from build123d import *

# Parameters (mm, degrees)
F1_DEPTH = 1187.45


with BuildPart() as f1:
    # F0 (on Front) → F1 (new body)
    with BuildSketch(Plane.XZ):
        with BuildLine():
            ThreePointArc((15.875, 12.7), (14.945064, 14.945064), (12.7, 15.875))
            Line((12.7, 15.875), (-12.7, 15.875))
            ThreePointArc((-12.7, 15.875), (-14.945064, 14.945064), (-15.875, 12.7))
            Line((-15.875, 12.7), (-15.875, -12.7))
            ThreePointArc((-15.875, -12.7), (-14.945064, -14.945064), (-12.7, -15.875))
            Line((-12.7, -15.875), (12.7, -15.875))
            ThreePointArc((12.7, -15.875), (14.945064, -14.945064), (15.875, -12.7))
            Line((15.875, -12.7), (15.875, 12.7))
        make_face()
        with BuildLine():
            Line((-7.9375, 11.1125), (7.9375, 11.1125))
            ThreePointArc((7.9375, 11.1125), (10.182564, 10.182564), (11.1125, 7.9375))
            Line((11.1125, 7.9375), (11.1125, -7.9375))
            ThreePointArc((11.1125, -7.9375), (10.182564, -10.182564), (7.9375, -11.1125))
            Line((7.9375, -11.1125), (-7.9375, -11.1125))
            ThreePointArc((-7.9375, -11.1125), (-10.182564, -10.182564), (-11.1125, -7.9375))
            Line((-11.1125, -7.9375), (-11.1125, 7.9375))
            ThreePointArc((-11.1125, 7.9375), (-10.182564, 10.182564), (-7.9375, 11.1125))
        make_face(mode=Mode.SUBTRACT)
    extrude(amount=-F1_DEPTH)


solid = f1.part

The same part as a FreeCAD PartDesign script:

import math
import FreeCAD as App
import Part
import Sketcher
from FreeCAD import Vector
Q = App.Units.Quantity

doc = App.newDocument("Part")
body = doc.addObject("PartDesign::Body", "Body")

# Sketch on XZ plane
sketch1 = doc.addObject("Sketcher::SketchObject", "Sketch")
body.addObject(sketch1)
sketch1.AttachmentSupport = (doc.XZ_Plane, [""])
sketch1.MapMode = "FlatFace"
sketch1.addGeometry([
    Part.ArcOfCircle(Part.Circle(Vector(12.7, 12.7, 0), Vector(0, 0, 1), 3.2), math.radians(0), math.radians(90)),  # 0
    Part.LineSegment(Vector(12.7, 15.9, 0), Vector(-12.7, 15.9, 0)),  # 1
    Part.ArcOfCircle(Part.Circle(Vector(-12.7, 12.7, 0), Vector(0, 0, 1), 3.2), math.radians(90), math.radians(180)),  # 2
    Part.LineSegment(Vector(-15.9, 12.7, 0), Vector(-15.9, -12.7, 0)),  # 3
    Part.ArcOfCircle(Part.Circle(Vector(-12.7, -12.7, 0), Vector(0, 0, 1), 3.2), math.radians(-180), math.radians(-90)),  # 4
    Part.LineSegment(Vector(-12.7, -15.9, 0), Vector(12.7, -15.9, 0)),  # 5
    Part.ArcOfCircle(Part.Circle(Vector(12.7, -12.7, 0), Vector(0, 0, 1), 3.2), math.radians(-90), math.radians(0)),  # 6
    Part.LineSegment(Vector(15.9, -12.7, 0), Vector(15.9, 12.7, 0)),  # 7
    Part.ArcOfCircle(Part.Circle(Vector(-7.9, 7.9, 0), Vector(0, 0, 1), 3.2), math.radians(90), math.radians(180)),  # 8
    Part.LineSegment(Vector(-7.9, 11.1, 0), Vector(7.9, 11.1, 0)),  # 9
    Part.ArcOfCircle(Part.Circle(Vector(7.9, 7.9, 0), Vector(0, 0, 1), 3.2), math.radians(0), math.radians(90)),  # 10
    Part.LineSegment(Vector(11.1, 7.9, 0), Vector(11.1, -7.9, 0)),  # 11
    Part.ArcOfCircle(Part.Circle(Vector(7.9, -7.9, 0), Vector(0, 0, 1), 3.2), math.radians(-90), math.radians(0)),  # 12
    Part.LineSegment(Vector(7.9, -11.1, 0), Vector(-7.9, -11.1, 0)),  # 13
    Part.ArcOfCircle(Part.Circle(Vector(-7.9, -7.9, 0), Vector(0, 0, 1), 3.2), math.radians(-180), math.radians(-90)),  # 14
    Part.LineSegment(Vector(-11.1, -7.9, 0), Vector(-11.1, 7.9, 0)),  # 15
], False)
sketch1.addConstraint([
    Sketcher.Constraint("Tangent", 0, 2, 1, 1),
    Sketcher.Constraint("Tangent", 1, 2, 2, 1),
    Sketcher.Constraint("Tangent", 2, 2, 3, 1),
    Sketcher.Constraint("Tangent", 3, 2, 4, 1),
    Sketcher.Constraint("Tangent", 4, 2, 5, 1),
    Sketcher.Constraint("Tangent", 5, 2, 6, 1),
    Sketcher.Constraint("Tangent", 6, 2, 7, 1),
    Sketcher.Constraint("Tangent", 7, 2, 0, 1),
    Sketcher.Constraint("Tangent", 8, 1, 9, 1),
    Sketcher.Constraint("Tangent", 9, 2, 10, 2),
    Sketcher.Constraint("Tangent", 10, 1, 11, 1),
    Sketcher.Constraint("Tangent", 11, 2, 12, 2),
    Sketcher.Constraint("Tangent", 12, 1, 13, 1),
    Sketcher.Constraint("Tangent", 13, 2, 14, 2),
    Sketcher.Constraint("Tangent", 14, 1, 15, 1),
    Sketcher.Constraint("Tangent", 15, 2, 8, 2),
    Sketcher.Constraint("Horizontal", 1),
    Sketcher.Constraint("Vertical", 3),
    Sketcher.Constraint("Horizontal", 5),
    Sketcher.Constraint("Vertical", 7),
    Sketcher.Constraint("Horizontal", 9),
    Sketcher.Constraint("Vertical", 11),
    Sketcher.Constraint("Horizontal", 13),
    Sketcher.Constraint("Vertical", 15),
    Sketcher.Constraint("Equal", 0, 2),
    Sketcher.Constraint("Equal", 2, 4),
    Sketcher.Constraint("Equal", 4, 6),
    Sketcher.Constraint("Equal", 6, 8),
    Sketcher.Constraint("Equal", 8, 10),
    Sketcher.Constraint("Equal", 10, 12),
    Sketcher.Constraint("Equal", 12, 14),
    Sketcher.Constraint("Symmetric", 0, 3, 4, 3, -1, 1),
    Sketcher.Constraint("Symmetric", 8, 3, 12, 3, -1, 1),
    Sketcher.Constraint("Equal", 5, 3),
    Sketcher.Constraint("Equal", 13, 11),
    Sketcher.Constraint("DistanceX", 1, 2, 1, 1, Q("1 in")),
    Sketcher.Constraint("Radius", 0, Q("0.125 in")),
    Sketcher.Constraint("DistanceX", 9, 1, 9, 2, Q("0.625 in")),
])
pad1 = doc.addObject("PartDesign::Pad", "Pad")
body.addObject(pad1)
pad1.Profile = sketch1
pad1.Length = Q("46.75 in")
pad1.Reversed = True

doc.recompute()
